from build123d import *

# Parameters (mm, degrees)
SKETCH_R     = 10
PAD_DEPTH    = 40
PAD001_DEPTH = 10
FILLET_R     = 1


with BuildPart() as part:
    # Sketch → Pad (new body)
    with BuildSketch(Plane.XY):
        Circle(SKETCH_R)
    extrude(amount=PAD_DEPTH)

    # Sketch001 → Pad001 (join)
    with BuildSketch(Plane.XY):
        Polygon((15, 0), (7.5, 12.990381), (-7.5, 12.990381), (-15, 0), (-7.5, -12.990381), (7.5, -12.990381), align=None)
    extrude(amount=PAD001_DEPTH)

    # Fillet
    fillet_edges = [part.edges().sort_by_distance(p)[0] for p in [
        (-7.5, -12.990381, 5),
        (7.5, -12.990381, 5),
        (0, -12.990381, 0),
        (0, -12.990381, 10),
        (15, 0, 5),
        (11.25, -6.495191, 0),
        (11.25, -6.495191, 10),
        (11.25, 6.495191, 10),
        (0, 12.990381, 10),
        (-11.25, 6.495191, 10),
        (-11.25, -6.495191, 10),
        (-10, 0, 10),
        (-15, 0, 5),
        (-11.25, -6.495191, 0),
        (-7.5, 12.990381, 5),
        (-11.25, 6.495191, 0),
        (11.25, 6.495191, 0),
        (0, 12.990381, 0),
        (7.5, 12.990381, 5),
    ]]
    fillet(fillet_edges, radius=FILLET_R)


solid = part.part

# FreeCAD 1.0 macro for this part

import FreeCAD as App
import Part
import Sketcher
from FreeCAD import Vector
Q = App.Units.Quantity


def edges_at(feature, points):
    """Names of the edges that pass closest to the given points."""
    edges = feature.Shape.Edges
    near = lambda p: min(range(len(edges)), key=lambda i: edges[i].distToShape(Part.Vertex(*p))[0])
    return sorted({f"Edge{near(p) + 1}" for p in points})

doc = App.newDocument("Part")
params = doc.addObject("Spreadsheet::Sheet", "Params")
for row, (alias, value) in enumerate([
    ("sketch1_diameter", "20 mm"),
    ("pad1_length", "40 mm"),
    ("sketch2_width", "15 mm"),
    ("sketch2_length", "15 mm"),
    ("pad2_length", "10 mm"),
    ("fillet_radius", "1 mm"),
], start=1):
    params.set(f"A{row}", alias)
    params.set(f"B{row}", "=" + value)
    params.setAlias(f"B{row}", alias)

body = doc.addObject("PartDesign::Body", "Body")

sketch1 = body.newObject("Sketcher::SketchObject", "Sketch")
sketch1.AttachmentSupport = (doc.getObject("XY_Plane"), [""])
sketch1.MapMode = "FlatFace"
sketch1.addGeometry(Part.Circle(Vector(0, 0, 0), Vector(0, 0, 1), 10), False)
sketch1.addConstraint(Sketcher.Constraint("Coincident", 0, 3, -1, 1))
sketch1.addConstraint(Sketcher.Constraint("Diameter", 0, 20.0))
sketch1.setExpression("Constraints[1]", "Params.sketch1_diameter")
pad1 = body.newObject("PartDesign::Pad", "Pad")
pad1.Profile = sketch1
pad1.setExpression("Length", "Params.pad1_length")

sketch2 = body.newObject("Sketcher::SketchObject", "Sketch001")
sketch2.AttachmentSupport = (doc.getObject("XY_Plane"), [""])
sketch2.MapMode = "FlatFace"
sketch2.addGeometry(Part.LineSegment(Vector(15, 0, 0), Vector(7.5, 12.990381, 0)), False)
sketch2.addGeometry(Part.LineSegment(Vector(7.5, 12.990381, 0), Vector(-7.5, 12.990381, 0)), False)
sketch2.addGeometry(Part.LineSegment(Vector(-7.5, 12.990381, 0), Vector(-15, 0, 0)), False)
sketch2.addGeometry(Part.LineSegment(Vector(-15, 0, 0), Vector(-7.5, -12.990381, 0)), False)
sketch2.addGeometry(Part.LineSegment(Vector(-7.5, -12.990381, 0), Vector(7.5, -12.990381, 0)), False)
sketch2.addGeometry(Part.LineSegment(Vector(7.5, -12.990381, 0), Vector(15, 0, 0)), False)
sketch2.addConstraint(Sketcher.Constraint("Coincident", 0, 2, 1, 1))
sketch2.addConstraint(Sketcher.Constraint("Coincident", 1, 2, 2, 1))
sketch2.addConstraint(Sketcher.Constraint("Coincident", 2, 2, 3, 1))
sketch2.addConstraint(Sketcher.Constraint("Coincident", 3, 2, 4, 1))
sketch2.addConstraint(Sketcher.Constraint("Coincident", 4, 2, 5, 1))
sketch2.addConstraint(Sketcher.Constraint("Coincident", 5, 2, 0, 1))
sketch2.addConstraint(Sketcher.Constraint("Horizontal", 1))
sketch2.addConstraint(Sketcher.Constraint("Horizontal", 4))
sketch2.addConstraint(Sketcher.Constraint("Symmetric", 0, 2, 3, 2, -1, 1))
sketch2.addConstraint(Sketcher.Constraint("Symmetric", 2, 2, 5, 2, -1, 1))
sketch2.addConstraint(Sketcher.Constraint("PointOnObject", 2, 2, -1))
sketch2.addConstraint(Sketcher.Constraint("Parallel", 2, 5))
sketch2.addConstraint(Sketcher.Constraint("Vertical", 1, 2, 3, 2))
sketch2.addConstraint(Sketcher.Constraint("DistanceX", 1, 2, 1, 1, 15.0))
sketch2.addConstraint(Sketcher.Constraint("Angle", 0, Q("120 deg")))
sketch2.addConstraint(Sketcher.Constraint("Distance", 0, 15.0))
sketch2.setExpression("Constraints[13]", "Params.sketch2_width")
sketch2.setExpression("Constraints[15]", "Params.sketch2_length")
pad2 = body.newObject("PartDesign::Pad", "Pad001")
pad2.Profile = sketch2
pad2.setExpression("Length", "Params.pad2_length")
doc.recompute()

fillet = body.newObject("PartDesign::Fillet", "Fillet")
fillet.Base = (pad2, edges_at(pad2, [
    (-7.5, -12.99, 5),
    (7.5, -12.99, 5),
    (0, -12.99, 0),
    (0, -12.99, 10),
    (15, 0, 5),
    (11.25, -6.495, 0),
    (11.25, -6.495, 10),
    (11.25, 6.495, 10),
    (0, 12.99, 10),
    (-11.25, 6.495, 10),
    (-11.25, -6.495, 10),
    (-10, 0, 10),
    (-15, 0, 5),
    (-11.25, -6.495, 0),
    (-7.5, 12.99, 5),
    (-11.25, 6.495, 0),
    (11.25, 6.495, 0),
    (0, 12.99, 0),
    (7.5, 12.99, 5),
]))
fillet.setExpression("Radius", "Params.fillet_radius")

doc.recompute()
